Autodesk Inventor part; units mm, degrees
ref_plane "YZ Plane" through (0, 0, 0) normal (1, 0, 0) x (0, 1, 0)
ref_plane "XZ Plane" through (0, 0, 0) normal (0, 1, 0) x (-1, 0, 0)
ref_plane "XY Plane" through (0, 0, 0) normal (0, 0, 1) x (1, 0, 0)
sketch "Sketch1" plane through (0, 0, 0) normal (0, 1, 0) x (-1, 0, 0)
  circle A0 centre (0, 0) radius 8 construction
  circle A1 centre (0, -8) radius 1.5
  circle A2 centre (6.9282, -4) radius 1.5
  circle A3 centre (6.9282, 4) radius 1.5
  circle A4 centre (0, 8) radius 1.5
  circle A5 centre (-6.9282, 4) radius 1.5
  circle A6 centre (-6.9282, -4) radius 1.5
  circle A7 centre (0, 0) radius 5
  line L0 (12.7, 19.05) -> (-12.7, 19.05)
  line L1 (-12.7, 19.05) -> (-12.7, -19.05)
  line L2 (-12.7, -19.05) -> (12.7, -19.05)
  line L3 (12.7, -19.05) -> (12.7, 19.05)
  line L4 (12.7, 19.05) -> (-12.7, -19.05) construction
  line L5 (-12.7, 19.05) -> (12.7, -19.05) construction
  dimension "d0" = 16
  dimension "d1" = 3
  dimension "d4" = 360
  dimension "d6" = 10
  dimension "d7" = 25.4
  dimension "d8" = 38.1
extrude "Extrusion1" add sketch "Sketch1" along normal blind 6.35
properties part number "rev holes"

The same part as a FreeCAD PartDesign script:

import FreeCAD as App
import Part
import Sketcher
from FreeCAD import Vector
Q = App.Units.Quantity

doc = App.newDocument("Part")
body = doc.addObject("PartDesign::Body", "Body")

sketch1 = body.newObject("Sketcher::SketchObject", "Sketch")
sketch1.AttachmentSupport = (doc.getObject("XZ_Plane"), [""])
sketch1.MapMode = "FlatFace"
sketch1.addGeometry(Part.LineSegment(Vector(-12.7, -19.05, 0), Vector(-12.7, 19.05, 0)), False)
sketch1.addGeometry(Part.LineSegment(Vector(-12.7, 19.05, 0), Vector(12.7, 19.05, 0)), False)
sketch1.addGeometry(Part.LineSegment(Vector(12.7, 19.05, 0), Vector(12.7, -19.05, 0)), False)
sketch1.addGeometry(Part.LineSegment(Vector(12.7, -19.05, 0), Vector(-12.7, -19.05, 0)), False)
sketch1.addGeometry(Part.Circle(Vector(6.9282, -4, 0), Vector(0, 0, 1), 1.5), False)
sketch1.addGeometry(Part.Circle(Vector(0, -8, 0), Vector(0, 0, 1), 1.5), False)
sketch1.addGeometry(Part.Circle(Vector(-6.9282, -4, 0), Vector(0, 0, 1), 1.5), False)
sketch1.addGeometry(Part.Circle(Vector(6.9282, 4, 0), Vector(0, 0, 1), 1.5), False)
sketch1.addGeometry(Part.Circle(Vector(0, 0, 0), Vector(0, 0, 1), 5), False)
sketch1.addGeometry(Part.Circle(Vector(0, 8, 0), Vector(0, 0, 1), 1.5), False)
sketch1.addGeometry(Part.Circle(Vector(-6.9282, 4, 0), Vector(0, 0, 1), 1.5), False)
sketch1.addConstraint(Sketcher.Constraint("Coincident", 0, 2, 1, 1))
sketch1.addConstraint(Sketcher.Constraint("Coincident", 1, 2, 2, 1))
sketch1.addConstraint(Sketcher.Constraint("Coincident", 2, 2, 3, 1))
sketch1.addConstraint(Sketcher.Constraint("Coincident", 3, 2, 0, 1))
sketch1.addConstraint(Sketcher.Constraint("Vertical", 0))
sketch1.addConstraint(Sketcher.Constraint("Horizontal", 1))
sketch1.addConstraint(Sketcher.Constraint("Vertical", 2))
sketch1.addConstraint(Sketcher.Constraint("Horizontal", 3))
sketch1.addConstraint(Sketcher.Constraint("Coincident", 8, 3, -1, 1))
sketch1.addConstraint(Sketcher.Constraint("Equal", 4, 5))
sketch1.addConstraint(Sketcher.Constraint("Equal", 5, 6))
sketch1.addConstraint(Sketcher.Constraint("Equal", 6, 7))
sketch1.addConstraint(Sketcher.Constraint("Equal", 7, 9))
sketch1.addConstraint(Sketcher.Constraint("Equal", 9, 10))
sketch1.addConstraint(Sketcher.Constraint("Symmetric", 6, 3, 7, 3, -1, 1))
sketch1.addConstraint(Sketcher.Constraint("Symmetric", 5, 3, 9, 3, -1, 1))
sketch1.addConstraint(Sketcher.Constraint("Symmetric", 4, 3, 10, 3, -1, 1))
sketch1.addConstraint(Sketcher.Constraint("Symmetric", 0, 2, 2, 2, -1, 1))
sketch1.addConstraint(Sketcher.Constraint("Symmetric", 4, 3, 6, 3, -2))
sketch1.addConstraint(Sketcher.Constraint("PointOnObject", 5, 3, -2))
sketch1.addConstraint(Sketcher.Constraint("DistanceX", 1, 1, 1, 2, Q("1 in")))
sketch1.addConstraint(Sketcher.Constraint("DistanceY", 0, 1, 0, 2, Q("1.5 in")))
sketch1.addConstraint(Sketcher.Constraint("Diameter", 4, Q("0.1181 in")))
sketch1.addConstraint(Sketcher.Constraint("Diameter", 8, Q("0.3937 in")))
sketch1.addConstraint(Sketcher.Constraint("DistanceY", 5, 3, 9, 3, 16.0))
sketch1.addConstraint(Sketcher.Constraint("DistanceX", -1, 1, 4, 3, 6.9282))
sketch1.addConstraint(Sketcher.Constraint("DistanceY", 4, 3, -1, 1, 4.0))
pad1 = body.newObject("PartDesign::Pad", "Pad")
pad1.Profile = sketch1
pad1.Length = Q("0.25 in")
pad1.Reversed = True

doc.recompute()
